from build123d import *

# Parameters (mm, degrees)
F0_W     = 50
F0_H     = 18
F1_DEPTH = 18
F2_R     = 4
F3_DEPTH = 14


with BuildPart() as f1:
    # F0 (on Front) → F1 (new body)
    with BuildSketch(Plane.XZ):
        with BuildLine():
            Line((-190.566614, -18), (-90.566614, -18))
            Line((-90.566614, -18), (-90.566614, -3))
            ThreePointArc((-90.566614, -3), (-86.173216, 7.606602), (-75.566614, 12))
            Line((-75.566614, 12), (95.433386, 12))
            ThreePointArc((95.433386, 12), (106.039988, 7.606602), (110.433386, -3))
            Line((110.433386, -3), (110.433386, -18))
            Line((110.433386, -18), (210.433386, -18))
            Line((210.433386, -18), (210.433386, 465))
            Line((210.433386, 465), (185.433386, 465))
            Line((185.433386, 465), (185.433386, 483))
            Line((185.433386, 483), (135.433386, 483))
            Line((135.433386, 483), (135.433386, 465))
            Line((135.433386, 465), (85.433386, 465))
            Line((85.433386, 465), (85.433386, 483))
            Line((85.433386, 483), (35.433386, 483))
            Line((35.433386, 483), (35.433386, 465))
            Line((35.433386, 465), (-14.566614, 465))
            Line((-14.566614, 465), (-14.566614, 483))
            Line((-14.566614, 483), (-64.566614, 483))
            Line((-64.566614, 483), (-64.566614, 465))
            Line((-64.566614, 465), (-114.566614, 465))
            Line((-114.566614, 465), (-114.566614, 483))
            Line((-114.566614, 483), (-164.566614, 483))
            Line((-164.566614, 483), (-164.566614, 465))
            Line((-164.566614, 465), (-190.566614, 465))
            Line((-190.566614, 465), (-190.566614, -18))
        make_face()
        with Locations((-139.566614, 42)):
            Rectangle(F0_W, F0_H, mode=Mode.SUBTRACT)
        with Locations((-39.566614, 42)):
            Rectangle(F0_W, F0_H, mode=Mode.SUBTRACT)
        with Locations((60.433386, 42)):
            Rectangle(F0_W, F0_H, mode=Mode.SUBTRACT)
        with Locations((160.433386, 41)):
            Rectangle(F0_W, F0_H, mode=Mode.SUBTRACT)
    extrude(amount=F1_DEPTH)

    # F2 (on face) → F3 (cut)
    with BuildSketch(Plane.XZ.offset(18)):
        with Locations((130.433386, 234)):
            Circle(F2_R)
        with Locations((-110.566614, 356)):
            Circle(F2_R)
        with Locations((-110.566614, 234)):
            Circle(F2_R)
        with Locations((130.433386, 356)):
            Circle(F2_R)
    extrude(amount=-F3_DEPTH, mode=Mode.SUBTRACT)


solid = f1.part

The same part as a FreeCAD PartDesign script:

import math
import FreeCAD as App
import Part
import Sketcher
from FreeCAD import Vector
Q = App.Units.Quantity


def add_polygon(sketch, points):
    """Adds a closed chain of lines whose ends are joined by coincident constraints."""
    first, n = sketch.GeometryCount, len(points)
    for a, b in zip(points, points[1:] + points[:1]):
        sketch.addGeometry(Part.LineSegment(App.Vector(*a, 0), App.Vector(*b, 0)), False)
    for i in range(n):
        sketch.addConstraint(Sketcher.Constraint("Coincident", first + i, 2, first + (i + 1) % n, 1))

doc = App.newDocument("Part")
params = doc.addObject("Spreadsheet::Sheet", "Params")
for row, (alias, value) in enumerate([
    ("sketch1_radius", "14.999999 mm"),
    ("sketch1_width", "100 mm"),
    ("sketch1_width2", "171 mm"),
    ("sketch1_width3", "25 mm"),
    ("sketch1_width4", "50 mm"),
    ("pad1_length", "18 mm"),
    ("sketch2_diameter", "8 mm"),
    ("pocket1_length", "14 mm"),
], start=1):
    params.set(f"A{row}", alias)
    params.set(f"B{row}", "=" + value)
    params.setAlias(f"B{row}", alias)

body = doc.addObject("PartDesign::Body", "Body")

# Sketch on XZ plane
sketch1 = doc.addObject("Sketcher::SketchObject", "Sketch")
body.addObject(sketch1)
sketch1.AttachmentSupport = (doc.XZ_Plane, [""])
sketch1.MapMode = "FlatFace"
sketch1.addGeometry(Part.LineSegment(Vector(-191, -18, 0), Vector(-91, -18, 0)), False)  # 0
sketch1.addGeometry(Part.LineSegment(Vector(-91, -18, 0), Vector(-91, -3, 0)), False)  # 1
sketch1.addGeometry(Part.ArcOfCircle(Part.Circle(Vector(-76, -3, 0), Vector(0, 0, 1), 15), math.radians(90), math.radians(180)), False)  # 2
sketch1.addGeometry(Part.LineSegment(Vector(-76, 12, 0), Vector(95, 12, 0)), False)  # 3
sketch1.addGeometry(Part.ArcOfCircle(Part.Circle(Vector(95, -3, 0), Vector(0, 0, 1), 15), math.radians(0), math.radians(90)), False)  # 4
sketch1.addGeometry(Part.LineSegment(Vector(110, -3, 0), Vector(110, -18, 0)), False)  # 5
sketch1.addGeometry(Part.LineSegment(Vector(110, -18, 0), Vector(210, -18, 0)), False)  # 6
sketch1.addGeometry(Part.LineSegment(Vector(210, -18, 0), Vector(210, 465, 0)), False)  # 7
sketch1.addGeometry(Part.LineSegment(Vector(210, 465, 0), Vector(185, 465, 0)), False)  # 8
sketch1.addGeometry(Part.LineSegment(Vector(185, 465, 0), Vector(185, 483, 0)), False)  # 9
sketch1.addGeometry(Part.LineSegment(Vector(185, 483, 0), Vector(135, 483, 0)), False)  # 10
sketch1.addGeometry(Part.LineSegment(Vector(135, 483, 0), Vector(135, 465, 0)), False)  # 11
sketch1.addGeometry(Part.LineSegment(Vector(135, 465, 0), Vector(85, 465, 0)), False)  # 12
sketch1.addGeometry(Part.LineSegment(Vector(85, 465, 0), Vector(85, 483, 0)), False)  # 13
sketch1.addGeometry(Part.LineSegment(Vector(85, 483, 0), Vector(35, 483, 0)), False)  # 14
sketch1.addGeometry(Part.LineSegment(Vector(35, 483, 0), Vector(35, 465, 0)), False)  # 15
sketch1.addGeometry(Part.LineSegment(Vector(35, 465, 0), Vector(-15, 465, 0)), False)  # 16
sketch1.addGeometry(Part.LineSegment(Vector(-15, 465, 0), Vector(-15, 483, 0)), False)  # 17
sketch1.addGeometry(Part.LineSegment(Vector(-15, 483, 0), Vector(-65, 483, 0)), False)  # 18
sketch1.addGeometry(Part.LineSegment(Vector(-65, 483, 0), Vector(-65, 465, 0)), False)  # 19
sketch1.addGeometry(Part.LineSegment(Vector(-65, 465, 0), Vector(-115, 465, 0)), False)  # 20
sketch1.addGeometry(Part.LineSegment(Vector(-115, 465, 0), Vector(-115, 483, 0)), False)  # 21
sketch1.addGeometry(Part.LineSegment(Vector(-115, 483, 0), Vector(-165, 483, 0)), False)  # 22
sketch1.addGeometry(Part.LineSegment(Vector(-165, 483, 0), Vector(-165, 465, 0)), False)  # 23
sketch1.addGeometry(Part.LineSegment(Vector(-165, 465, 0), Vector(-191, 465, 0)), False)  # 24
sketch1.addGeometry(Part.LineSegment(Vector(-191, 465, 0), Vector(-191, -18, 0)), False)  # 25
add_polygon(sketch1, [(185, 32), (135, 32), (135, 50), (185, 50)])  # lines 26-29
add_polygon(sketch1, [(-115, 33), (-165, 33), (-165, 51), (-115, 51)])  # lines 30-33
add_polygon(sketch1, [(-15, 33), (-65, 33), (-65, 51), (-15, 51)])  # lines 34-37
add_polygon(sketch1, [(85, 33), (35, 33), (35, 51), (85, 51)])  # lines 38-41
sketch1.addConstraint(Sketcher.Constraint("Coincident", 0, 2, 1, 1))
sketch1.addConstraint(Sketcher.Constraint("Tangent", 1, 2, 2, 2))
sketch1.addConstraint(Sketcher.Constraint("Tangent", 2, 1, 3, 1))
sketch1.addConstraint(Sketcher.Constraint("Tangent", 3, 2, 4, 2))
sketch1.addConstraint(Sketcher.Constraint("Tangent", 4, 1, 5, 1))
sketch1.addConstraint(Sketcher.Constraint("Coincident", 5, 2, 6, 1))
sketch1.addConstraint(Sketcher.Constraint("Coincident", 6, 2, 7, 1))
sketch1.addConstraint(Sketcher.Constraint("Coincident", 7, 2, 8, 1))
sketch1.addConstraint(Sketcher.Constraint("Coincident", 8, 2, 9, 1))
sketch1.addConstraint(Sketcher.Constraint("Coincident", 9, 2, 10, 1))
sketch1.addConstraint(Sketcher.Constraint("Coincident", 10, 2, 11, 1))
sketch1.addConstraint(Sketcher.Constraint("Coincident", 11, 2, 12, 1))
sketch1.addConstraint(Sketcher.Constraint("Coincident", 12, 2, 13, 1))
sketch1.addConstraint(Sketcher.Constraint("Coincident", 13, 2, 14, 1))
sketch1.addConstraint(Sketcher.Constraint("Coincident", 14, 2, 15, 1))
sketch1.addConstraint(Sketcher.Constraint("Coincident", 15, 2, 16, 1))
sketch1.addConstraint(Sketcher.Constraint("Coincident", 16, 2, 17, 1))
sketch1.addConstraint(Sketcher.Constraint("Coincident", 17, 2, 18, 1))
sketch1.addConstraint(Sketcher.Constraint("Coincident", 18, 2, 19, 1))
sketch1.addConstraint(Sketcher.Constraint("Coincident", 19, 2, 20, 1))
sketch1.addConstraint(Sketcher.Constraint("Coincident", 20, 2, 21, 1))
sketch1.addConstraint(Sketcher.Constraint("Coincident", 21, 2, 22, 1))
sketch1.addConstraint(Sketcher.Constraint("Coincident", 22, 2, 23, 1))
sketch1.addConstraint(Sketcher.Constraint("Coincident", 23, 2, 24, 1))
sketch1.addConstraint(Sketcher.Constraint("Coincident", 24, 2, 25, 1))
sketch1.addConstraint(Sketcher.Constraint("Coincident", 25, 2, 0, 1))
sketch1.addConstraint(Sketcher.Constraint("Horizontal", 0))
sketch1.addConstraint(Sketcher.Constraint("Vertical", 1))
sketch1.addConstraint(Sketcher.Constraint("Horizontal", 3))
sketch1.addConstraint(Sketcher.Constraint("Vertical", 5))
sketch1.addConstraint(Sketcher.Constraint("Horizontal", 6))
sketch1.addConstraint(Sketcher.Constraint("Vertical", 7))
sketch1.addConstraint(Sketcher.Constraint("Horizontal", 8))
sketch1.addConstraint(Sketcher.Constraint("Vertical", 9))
sketch1.addConstraint(Sketcher.Constraint("Horizontal", 10))
sketch1.addConstraint(Sketcher.Constraint("Vertical", 11))
sketch1.addConstraint(Sketcher.Constraint("Horizontal", 12))
sketch1.addConstraint(Sketcher.Constraint("Vertical", 13))
sketch1.addConstraint(Sketcher.Constraint("Horizontal", 14))
sketch1.addConstraint(Sketcher.Constraint("Vertical", 15))
sketch1.addConstraint(Sketcher.Constraint("Horizontal", 16))
sketch1.addConstraint(Sketcher.Constraint("Vertical", 17))
sketch1.addConstraint(Sketcher.Constraint("Horizontal", 18))
sketch1.addConstraint(Sketcher.Constraint("Vertical", 19))
sketch1.addConstraint(Sketcher.Constraint("Horizontal", 20))
sketch1.addConstraint(Sketcher.Constraint("Vertical", 21))
sketch1.addConstraint(Sketcher.Constraint("Horizontal", 22))
sketch1.addConstraint(Sketcher.Constraint("Vertical", 23))
sketch1.addConstraint(Sketcher.Constraint("Horizontal", 24))
sketch1.addConstraint(Sketcher.Constraint("Vertical", 25))
sketch1.addConstraint(Sketcher.Constraint("Horizontal", 26))
sketch1.addConstraint(Sketcher.Constraint("Vertical", 27))
sketch1.addConstraint(Sketcher.Constraint("Horizontal", 28))
sketch1.addConstraint(Sketcher.Constraint("Vertical", 29))
sketch1.addConstraint(Sketcher.Constraint("Horizontal", 30))
sketch1.addConstraint(Sketcher.Constraint("Vertical", 31))
sketch1.addConstraint(Sketcher.Constraint("Horizontal", 32))
sketch1.addConstraint(Sketcher.Constraint("Vertical", 33))
sketch1.addConstraint(Sketcher.Constraint("Horizontal", 34))
sketch1.addConstraint(Sketcher.Constraint("Vertical", 35))
sketch1.addConstraint(Sketcher.Constraint("Horizontal", 36))
sketch1.addConstraint(Sketcher.Constraint("Vertical", 37))
sketch1.addConstraint(Sketcher.Constraint("Horizontal", 38))
sketch1.addConstraint(Sketcher.Constraint("Vertical", 39))
sketch1.addConstraint(Sketcher.Constraint("Horizontal", 40))
sketch1.addConstraint(Sketcher.Constraint("Vertical", 41))
sketch1.addConstraint(Sketcher.Constraint("Equal", 2, 4))
sketch1.addConstraint(Sketcher.Constraint("Horizontal", 0, 2, 5, 2))
sketch1.addConstraint(Sketcher.Constraint("Horizontal", 8, 2, 11, 2))
sketch1.addConstraint(Sketcher.Constraint("Horizontal", 10, 2, 13, 2))
sketch1.addConstraint(Sketcher.Constraint("Horizontal", 12, 2, 15, 2))
sketch1.addConstraint(Sketcher.Constraint("Horizontal", 14, 2, 17, 2))
sketch1.addConstraint(Sketcher.Constraint("Horizontal", 16, 2, 19, 2))
sketch1.addConstraint(Sketcher.Constraint("Horizontal", 18, 2, 21, 2))
sketch1.addConstraint(Sketcher.Constraint("Horizontal", 20, 2, 23, 2))
sketch1.addConstraint(Sketcher.Constraint("Horizontal", 33, 2, 34, 2))
sketch1.addConstraint(Sketcher.Constraint("Horizontal", 32, 2, 35, 2))
sketch1.addConstraint(Sketcher.Constraint("Horizontal", 37, 2, 38, 2))
sketch1.addConstraint(Sketcher.Constraint("Horizontal", 36, 2, 39, 2))
sketch1.addConstraint(Sketcher.Constraint("Vertical", 11, 2, 26, 2))
sketch1.addConstraint(Sketcher.Constraint("Vertical", 9, 2, 28, 2))
sketch1.addConstraint(Sketcher.Constraint("Vertical", 23, 2, 30, 2))
sketch1.addConstraint(Sketcher.Constraint("Vertical", 21, 2, 32, 2))
sketch1.addConstraint(Sketcher.Constraint("Vertical", 19, 2, 34, 2))
sketch1.addConstraint(Sketcher.Constraint("Vertical", 17, 2, 36, 2))
sketch1.addConstraint(Sketcher.Constraint("Vertical", 15, 2, 38, 2))
sketch1.addConstraint(Sketcher.Constraint("Vertical", 13, 2, 40, 2))
sketch1.addConstraint(Sketcher.Constraint("Equal", 0, 6))
sketch1.addConstraint(Sketcher.Constraint("Equal", 10, 12))
sketch1.addConstraint(Sketcher.Constraint("Equal", 12, 14))
sketch1.addConstraint(Sketcher.Constraint("Equal", 14, 16))
sketch1.addConstraint(Sketcher.Constraint("Equal", 16, 18))
sketch1.addConstraint(Sketcher.Constraint("Equal", 18, 20))
sketch1.addConstraint(Sketcher.Constraint("Equal", 20, 22))
sketch1.addConstraint(Sketcher.Constraint("Equal", 23, 27))
sketch1.addConstraint(Sketcher.Constraint("Equal", 29, 31))
sketch1.addConstraint(Sketcher.Constraint("Radius", 2, Q("14.999999 mm")))
sketch1.addConstraint(Sketcher.Constraint("DistanceX", 0, 1, 0, 2, Q("100 mm")))
sketch1.addConstraint(Sketcher.Constraint("DistanceX", 3, 1, 3, 2, Q("171 mm")))
sketch1.addConstraint(Sketcher.Constraint("DistanceX", 8, 2, 8, 1, Q("25 mm")))
sketch1.addConstraint(Sketcher.Constraint("DistanceX", 10, 2, 10, 1, Q("50 mm")))
sketch1.addConstraint(Sketcher.Constraint("DistanceY", 1, 1, 1, 2, Q("15 mm")))
sketch1.addConstraint(Sketcher.Constraint("DistanceY", 7, 1, 7, 2, Q("483 mm")))
sketch1.addConstraint(Sketcher.Constraint("DistanceY", 9, 1, 9, 2, Q("18 mm")))
sketch1.addConstraint(Sketcher.Constraint("DistanceY", 2, 3, -1, 1, Q("2.999999 mm")))
sketch1.addConstraint(Sketcher.Constraint("DistanceY", -1, 1, 26, 2, Q("32 mm")))
sketch1.addConstraint(Sketcher.Constraint("DistanceY", -1, 1, 30, 2, Q("33 mm")))
sketch1.addConstraint(Sketcher.Constraint("DistanceX", 2, 3, -1, 1, Q("75.566615 mm")))
sketch1.setExpression("Constraints[112]", "Params.sketch1_radius")
sketch1.setExpression("Constraints[113]", "Params.sketch1_width")
sketch1.setExpression("Constraints[114]", "Params.sketch1_width2")
sketch1.setExpression("Constraints[115]", "Params.sketch1_width3")
sketch1.setExpression("Constraints[116]", "Params.sketch1_width4")
pad1 = doc.addObject("PartDesign::Pad", "Pad")
body.addObject(pad1)
pad1.Profile = sketch1
pad1.setExpression("Length", "Params.pad1_length")

# Sketch on XZ plane
sketch2 = doc.addObject("Sketcher::SketchObject", "Sketch001")
body.addObject(sketch2)
sketch2.AttachmentSupport = (doc.XZ_Plane, [""])
sketch2.MapMode = "FlatFace"
sketch2.AttachmentOffset = App.Placement(Vector(0, 0, 18), App.Rotation())
sketch2.addGeometry(Part.Circle(Vector(130.4, 234, 0), Vector(0, 0, 1), 4), False)
sketch2.addGeometry(Part.Circle(Vector(-110.6, 356, 0), Vector(0, 0, 1), 4), False)
sketch2.addGeometry(Part.Circle(Vector(-110.6, 234, 0), Vector(0, 0, 1), 4), False)
sketch2.addGeometry(Part.Circle(Vector(130.4, 356, 0), Vector(0, 0, 1), 4), False)
sketch2.addConstraint(Sketcher.Constraint("Equal", 0, 1))
sketch2.addConstraint(Sketcher.Constraint("Equal", 1, 2))
sketch2.addConstraint(Sketcher.Constraint("Equal", 2, 3))
sketch2.addConstraint(Sketcher.Constraint("Horizontal", 0, 3, 2, 3))
sketch2.addConstraint(Sketcher.Constraint("Horizontal", 1, 3, 3, 3))
sketch2.addConstraint(Sketcher.Constraint("Vertical", 1, 3, 2, 3))
sketch2.addConstraint(Sketcher.Constraint("Vertical", 0, 3, 3, 3))
sketch2.addConstraint(Sketcher.Constraint("Diameter", 0, Q("8 mm")))
sketch2.addConstraint(Sketcher.Constraint("DistanceY", -1, 1, 0, 3, Q("234 mm")))
sketch2.addConstraint(Sketcher.Constraint("DistanceY", -1, 1, 1, 3, Q("356 mm")))
sketch2.addConstraint(Sketcher.Constraint("DistanceX", 1, 3, 0, 3, Q("241 mm")))
sketch2.addConstraint(Sketcher.Constraint("DistanceX", -1, 1, 0, 3, Q("130.433386 mm")))
sketch2.setExpression("Constraints[7]", "Params.sketch2_diameter")
pocket1 = doc.addObject("PartDesign::Pocket", "Pocket")
body.addObject(pocket1)
pocket1.Profile = sketch2
pocket1.setExpression("Length", "Params.pocket1_length")

doc.recompute()
